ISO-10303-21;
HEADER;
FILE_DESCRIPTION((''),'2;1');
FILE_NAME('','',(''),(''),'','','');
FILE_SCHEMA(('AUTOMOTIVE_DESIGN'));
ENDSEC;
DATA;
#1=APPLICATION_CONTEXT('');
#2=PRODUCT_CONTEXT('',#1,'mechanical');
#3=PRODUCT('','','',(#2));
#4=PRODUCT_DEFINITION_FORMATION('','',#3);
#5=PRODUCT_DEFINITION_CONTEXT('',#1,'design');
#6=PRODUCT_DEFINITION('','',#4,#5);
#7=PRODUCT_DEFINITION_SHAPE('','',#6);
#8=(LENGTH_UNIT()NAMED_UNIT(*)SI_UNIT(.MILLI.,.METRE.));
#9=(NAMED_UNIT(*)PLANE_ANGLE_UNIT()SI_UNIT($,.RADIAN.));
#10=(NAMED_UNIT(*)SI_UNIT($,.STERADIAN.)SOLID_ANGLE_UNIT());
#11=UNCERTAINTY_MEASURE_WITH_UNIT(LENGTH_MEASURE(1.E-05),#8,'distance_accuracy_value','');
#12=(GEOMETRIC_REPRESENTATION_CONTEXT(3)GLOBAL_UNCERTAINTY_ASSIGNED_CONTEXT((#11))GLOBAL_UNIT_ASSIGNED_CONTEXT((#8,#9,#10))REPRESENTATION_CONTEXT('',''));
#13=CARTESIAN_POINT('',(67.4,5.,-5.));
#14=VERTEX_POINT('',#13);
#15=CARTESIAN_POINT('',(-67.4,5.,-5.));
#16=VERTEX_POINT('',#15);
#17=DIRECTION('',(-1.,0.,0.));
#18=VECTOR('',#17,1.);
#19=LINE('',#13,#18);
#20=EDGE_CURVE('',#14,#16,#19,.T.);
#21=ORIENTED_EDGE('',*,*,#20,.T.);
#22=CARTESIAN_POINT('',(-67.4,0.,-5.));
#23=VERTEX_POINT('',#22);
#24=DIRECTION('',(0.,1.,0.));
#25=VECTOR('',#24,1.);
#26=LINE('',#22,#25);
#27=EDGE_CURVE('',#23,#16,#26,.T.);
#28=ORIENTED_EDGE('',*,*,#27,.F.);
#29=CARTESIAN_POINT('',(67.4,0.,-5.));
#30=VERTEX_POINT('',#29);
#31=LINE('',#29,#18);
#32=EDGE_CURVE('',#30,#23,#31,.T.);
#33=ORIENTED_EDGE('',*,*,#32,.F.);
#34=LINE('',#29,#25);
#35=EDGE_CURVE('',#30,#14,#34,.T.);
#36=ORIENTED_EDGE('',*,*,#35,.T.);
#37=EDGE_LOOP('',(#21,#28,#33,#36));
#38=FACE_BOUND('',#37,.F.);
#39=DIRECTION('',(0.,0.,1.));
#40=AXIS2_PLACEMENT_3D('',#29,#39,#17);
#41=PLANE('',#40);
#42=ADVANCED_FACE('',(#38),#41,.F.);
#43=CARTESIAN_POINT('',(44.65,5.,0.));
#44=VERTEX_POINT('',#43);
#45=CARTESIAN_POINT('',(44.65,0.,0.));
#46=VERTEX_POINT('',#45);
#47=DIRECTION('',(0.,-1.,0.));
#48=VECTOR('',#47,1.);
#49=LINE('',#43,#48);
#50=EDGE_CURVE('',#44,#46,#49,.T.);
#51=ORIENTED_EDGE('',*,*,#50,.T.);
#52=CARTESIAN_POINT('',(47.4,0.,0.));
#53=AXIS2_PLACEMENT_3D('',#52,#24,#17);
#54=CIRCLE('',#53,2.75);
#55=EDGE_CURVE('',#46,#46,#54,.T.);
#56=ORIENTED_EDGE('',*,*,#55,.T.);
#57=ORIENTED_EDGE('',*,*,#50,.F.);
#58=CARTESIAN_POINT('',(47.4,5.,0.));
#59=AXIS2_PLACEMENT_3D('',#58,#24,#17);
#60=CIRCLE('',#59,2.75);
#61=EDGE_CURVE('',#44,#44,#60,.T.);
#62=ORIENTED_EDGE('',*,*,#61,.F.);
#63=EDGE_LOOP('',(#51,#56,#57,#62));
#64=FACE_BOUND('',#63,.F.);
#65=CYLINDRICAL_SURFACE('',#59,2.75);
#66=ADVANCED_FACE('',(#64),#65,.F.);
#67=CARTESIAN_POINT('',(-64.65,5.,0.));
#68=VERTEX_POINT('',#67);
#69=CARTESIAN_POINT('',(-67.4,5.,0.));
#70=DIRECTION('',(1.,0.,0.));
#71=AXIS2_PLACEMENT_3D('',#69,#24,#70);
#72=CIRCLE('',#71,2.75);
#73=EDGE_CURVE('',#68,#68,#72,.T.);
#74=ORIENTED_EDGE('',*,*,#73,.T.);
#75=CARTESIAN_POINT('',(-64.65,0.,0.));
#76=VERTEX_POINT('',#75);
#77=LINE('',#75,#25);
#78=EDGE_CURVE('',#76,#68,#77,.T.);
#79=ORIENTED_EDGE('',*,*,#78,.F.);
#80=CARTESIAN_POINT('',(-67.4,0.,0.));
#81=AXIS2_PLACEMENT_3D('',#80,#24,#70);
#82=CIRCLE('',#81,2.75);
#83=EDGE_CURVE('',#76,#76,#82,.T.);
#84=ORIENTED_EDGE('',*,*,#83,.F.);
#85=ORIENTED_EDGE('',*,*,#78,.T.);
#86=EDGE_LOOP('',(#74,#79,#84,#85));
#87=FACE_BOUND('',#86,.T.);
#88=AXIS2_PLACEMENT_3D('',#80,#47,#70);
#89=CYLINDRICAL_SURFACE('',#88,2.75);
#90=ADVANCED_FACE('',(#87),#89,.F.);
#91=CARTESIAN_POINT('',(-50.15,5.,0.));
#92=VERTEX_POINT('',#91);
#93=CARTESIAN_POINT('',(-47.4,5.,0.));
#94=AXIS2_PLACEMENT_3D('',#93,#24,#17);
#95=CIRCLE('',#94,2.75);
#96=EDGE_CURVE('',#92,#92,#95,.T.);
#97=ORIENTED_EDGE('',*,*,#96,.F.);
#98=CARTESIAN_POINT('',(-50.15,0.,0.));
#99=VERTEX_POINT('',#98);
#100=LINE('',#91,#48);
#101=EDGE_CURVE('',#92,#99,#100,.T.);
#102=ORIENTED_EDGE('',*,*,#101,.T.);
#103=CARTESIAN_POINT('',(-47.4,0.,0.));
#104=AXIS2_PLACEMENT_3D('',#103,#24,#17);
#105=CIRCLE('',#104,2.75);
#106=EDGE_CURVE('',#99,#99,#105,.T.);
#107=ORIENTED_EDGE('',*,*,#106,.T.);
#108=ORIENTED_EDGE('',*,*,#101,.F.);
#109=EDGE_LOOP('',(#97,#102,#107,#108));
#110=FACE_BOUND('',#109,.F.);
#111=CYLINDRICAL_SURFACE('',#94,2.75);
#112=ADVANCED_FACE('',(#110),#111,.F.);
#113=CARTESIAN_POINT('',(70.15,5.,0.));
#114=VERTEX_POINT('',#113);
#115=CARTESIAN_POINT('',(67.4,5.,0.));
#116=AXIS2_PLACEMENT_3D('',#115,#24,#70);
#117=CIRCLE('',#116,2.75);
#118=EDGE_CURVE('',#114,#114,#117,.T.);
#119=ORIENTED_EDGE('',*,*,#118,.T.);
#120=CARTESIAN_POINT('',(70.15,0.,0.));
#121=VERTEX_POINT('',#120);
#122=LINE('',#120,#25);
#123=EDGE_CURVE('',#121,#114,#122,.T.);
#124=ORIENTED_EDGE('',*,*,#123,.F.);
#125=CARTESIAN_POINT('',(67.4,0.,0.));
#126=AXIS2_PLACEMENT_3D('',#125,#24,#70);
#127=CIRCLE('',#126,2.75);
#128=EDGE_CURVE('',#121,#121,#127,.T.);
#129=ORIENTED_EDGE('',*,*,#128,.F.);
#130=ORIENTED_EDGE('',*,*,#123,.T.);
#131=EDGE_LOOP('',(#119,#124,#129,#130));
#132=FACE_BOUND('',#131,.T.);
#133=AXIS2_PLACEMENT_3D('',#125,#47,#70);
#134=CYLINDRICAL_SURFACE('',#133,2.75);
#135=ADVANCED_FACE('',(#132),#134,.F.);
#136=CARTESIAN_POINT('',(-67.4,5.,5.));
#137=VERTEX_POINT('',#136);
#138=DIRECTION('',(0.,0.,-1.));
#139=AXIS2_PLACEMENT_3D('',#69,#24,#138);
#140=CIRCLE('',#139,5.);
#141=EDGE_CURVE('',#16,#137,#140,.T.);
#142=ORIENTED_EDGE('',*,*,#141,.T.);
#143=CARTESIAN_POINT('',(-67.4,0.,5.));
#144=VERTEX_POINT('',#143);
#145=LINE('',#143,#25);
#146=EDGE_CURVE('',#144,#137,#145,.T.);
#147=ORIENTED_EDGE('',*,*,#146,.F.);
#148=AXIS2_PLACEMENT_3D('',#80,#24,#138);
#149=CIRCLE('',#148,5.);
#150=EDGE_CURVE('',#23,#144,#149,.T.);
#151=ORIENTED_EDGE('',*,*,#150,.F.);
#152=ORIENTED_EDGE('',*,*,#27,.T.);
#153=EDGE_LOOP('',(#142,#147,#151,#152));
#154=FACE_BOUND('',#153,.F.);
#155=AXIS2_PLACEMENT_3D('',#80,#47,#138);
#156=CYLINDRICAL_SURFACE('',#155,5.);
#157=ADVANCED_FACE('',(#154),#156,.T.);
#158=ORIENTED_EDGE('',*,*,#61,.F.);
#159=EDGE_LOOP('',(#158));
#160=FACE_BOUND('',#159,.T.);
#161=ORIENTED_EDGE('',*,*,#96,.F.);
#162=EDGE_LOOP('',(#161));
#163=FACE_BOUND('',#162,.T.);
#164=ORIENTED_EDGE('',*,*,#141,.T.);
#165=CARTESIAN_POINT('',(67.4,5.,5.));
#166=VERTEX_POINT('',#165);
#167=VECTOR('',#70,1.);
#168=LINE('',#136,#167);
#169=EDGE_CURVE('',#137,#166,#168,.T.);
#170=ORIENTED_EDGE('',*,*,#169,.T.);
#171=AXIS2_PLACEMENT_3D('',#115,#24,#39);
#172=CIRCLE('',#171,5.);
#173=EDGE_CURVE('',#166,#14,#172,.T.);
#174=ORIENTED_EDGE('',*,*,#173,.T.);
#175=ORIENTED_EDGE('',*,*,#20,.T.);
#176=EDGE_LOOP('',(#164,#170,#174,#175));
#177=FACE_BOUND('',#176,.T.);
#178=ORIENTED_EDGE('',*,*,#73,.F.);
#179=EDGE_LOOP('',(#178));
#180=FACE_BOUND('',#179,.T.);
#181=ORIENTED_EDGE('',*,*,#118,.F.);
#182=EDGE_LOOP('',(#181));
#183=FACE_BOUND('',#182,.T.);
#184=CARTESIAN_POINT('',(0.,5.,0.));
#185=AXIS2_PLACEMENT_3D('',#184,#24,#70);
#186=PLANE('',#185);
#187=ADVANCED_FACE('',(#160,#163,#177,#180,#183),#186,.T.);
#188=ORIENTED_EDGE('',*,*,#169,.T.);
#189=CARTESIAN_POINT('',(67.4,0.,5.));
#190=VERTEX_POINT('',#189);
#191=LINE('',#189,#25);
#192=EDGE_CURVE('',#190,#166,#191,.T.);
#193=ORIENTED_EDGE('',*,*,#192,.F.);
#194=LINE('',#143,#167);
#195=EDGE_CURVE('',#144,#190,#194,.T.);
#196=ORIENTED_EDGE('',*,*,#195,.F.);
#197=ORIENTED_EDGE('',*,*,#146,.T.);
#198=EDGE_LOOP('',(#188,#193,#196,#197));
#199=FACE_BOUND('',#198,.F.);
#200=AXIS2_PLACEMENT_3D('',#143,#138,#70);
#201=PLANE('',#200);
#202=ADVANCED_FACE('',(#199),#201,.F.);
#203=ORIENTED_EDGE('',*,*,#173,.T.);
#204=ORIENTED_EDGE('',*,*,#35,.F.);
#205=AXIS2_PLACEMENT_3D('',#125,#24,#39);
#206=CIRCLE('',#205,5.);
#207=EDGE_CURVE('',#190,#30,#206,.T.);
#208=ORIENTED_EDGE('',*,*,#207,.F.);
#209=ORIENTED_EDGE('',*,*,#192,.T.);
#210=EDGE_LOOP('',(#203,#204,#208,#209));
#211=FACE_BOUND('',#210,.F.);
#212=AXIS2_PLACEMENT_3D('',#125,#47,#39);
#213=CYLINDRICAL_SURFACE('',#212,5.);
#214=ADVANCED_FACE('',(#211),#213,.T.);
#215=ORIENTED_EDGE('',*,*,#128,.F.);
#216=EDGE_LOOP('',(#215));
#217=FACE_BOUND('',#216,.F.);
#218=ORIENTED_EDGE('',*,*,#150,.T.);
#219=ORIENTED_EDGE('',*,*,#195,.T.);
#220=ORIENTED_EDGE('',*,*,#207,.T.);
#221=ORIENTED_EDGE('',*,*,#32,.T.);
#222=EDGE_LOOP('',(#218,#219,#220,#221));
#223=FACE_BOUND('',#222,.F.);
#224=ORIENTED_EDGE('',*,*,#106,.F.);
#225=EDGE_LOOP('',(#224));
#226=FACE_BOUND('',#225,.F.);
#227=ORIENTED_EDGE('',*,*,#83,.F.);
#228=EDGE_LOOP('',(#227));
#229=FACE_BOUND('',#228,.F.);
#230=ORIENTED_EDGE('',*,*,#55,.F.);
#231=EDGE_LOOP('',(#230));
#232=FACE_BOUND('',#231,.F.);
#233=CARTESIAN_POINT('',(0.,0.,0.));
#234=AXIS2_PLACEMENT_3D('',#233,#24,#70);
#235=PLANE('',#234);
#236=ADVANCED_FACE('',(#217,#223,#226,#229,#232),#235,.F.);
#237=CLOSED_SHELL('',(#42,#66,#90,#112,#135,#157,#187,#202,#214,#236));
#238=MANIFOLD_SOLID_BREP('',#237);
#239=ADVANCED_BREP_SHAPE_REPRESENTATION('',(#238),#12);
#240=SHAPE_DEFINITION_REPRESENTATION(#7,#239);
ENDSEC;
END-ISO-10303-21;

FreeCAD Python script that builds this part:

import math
import FreeCAD as App
import Part
import Sketcher

doc = App.newDocument("Part")
body = doc.addObject("PartDesign::Body", "Body")

sketch1 = body.newObject("Sketcher::SketchObject", "Sketch")
sketch1.AttachmentSupport = (doc.getObject("XZ_Plane"), [""])
sketch1.MapMode = "FlatFace"
sketch1.addGeometry(Part.ArcOfCircle(Part.Circle(App.Vector(-67.4, 0, 0), App.Vector(0, 0, 1), 5), math.radians(90), math.radians(270)), False)
sketch1.addGeometry(Part.LineSegment(App.Vector(-67.4, 5, 0), App.Vector(67.4, 5, 0)), False)
sketch1.addGeometry(Part.ArcOfCircle(Part.Circle(App.Vector(67.4, 0, 0), App.Vector(0, 0, 1), 5), math.radians(-90), math.radians(90)), False)
sketch1.addGeometry(Part.LineSegment(App.Vector(67.4, -5, 0), App.Vector(-67.4, -5, 0)), False)
sketch1.addGeometry(Part.Circle(App.Vector(-67.4, 0, 0), App.Vector(0, 0, 1), 2.8), False)
sketch1.addGeometry(Part.Circle(App.Vector(67.4, 0, 0), App.Vector(0, 0, 1), 2.8), False)
sketch1.addConstraint(Sketcher.Constraint("Tangent", 0, 1, 1, 1))
sketch1.addConstraint(Sketcher.Constraint("Tangent", 1, 2, 2, 2))
sketch1.addConstraint(Sketcher.Constraint("Tangent", 2, 1, 3, 1))
sketch1.addConstraint(Sketcher.Constraint("Tangent", 3, 2, 0, 2))
sketch1.addConstraint(Sketcher.Constraint("Horizontal", 1))
sketch1.addConstraint(Sketcher.Constraint("Horizontal", 3))
sketch1.addConstraint(Sketcher.Constraint("Coincident", 4, 3, 0, 3))
sketch1.addConstraint(Sketcher.Constraint("Coincident", 5, 3, 2, 3))
sketch1.addConstraint(Sketcher.Constraint("Equal", 4, 5))
sketch1.addConstraint(Sketcher.Constraint("Symmetric", 0, 3, 2, 3, -1, 1))
sketch1.addConstraint(Sketcher.Constraint("Radius", 0, 5.0))
sketch1.addConstraint(Sketcher.Constraint("Diameter", 4, 5.5))
sketch1.addConstraint(Sketcher.Constraint("DistanceX", 1, 1, 1, 2, 134.8))
pad1 = body.newObject("PartDesign::Pad", "Pad")
pad1.Profile = sketch1
pad1.Length = 5
pad1.Reversed = True

sketch2 = body.newObject("Sketcher::SketchObject", "Sketch001")
sketch2.AttachmentSupport = (doc.getObject("XZ_Plane"), [""])
sketch2.MapMode = "FlatFace"
sketch2.AttachmentOffset = App.Placement(App.Vector(0, 0, -5), App.Rotation())
sketch2.addGeometry(Part.Circle(App.Vector(-47.4, 0, 0), App.Vector(0, 0, 1), 2.8), False)
sketch2.addGeometry(Part.Circle(App.Vector(47.4, 0, 0), App.Vector(0, 0, 1), 2.8), False)
sketch2.addConstraint(Sketcher.Constraint("Equal", 0, 1))
sketch2.addConstraint(Sketcher.Constraint("Symmetric", 0, 3, 1, 3, -1, 1))
sketch2.addConstraint(Sketcher.Constraint("PointOnObject", 0, 3, -1))
sketch2.addConstraint(Sketcher.Constraint("Diameter", 0, 5.5))
sketch2.addConstraint(Sketcher.Constraint("DistanceX", 0, 3, -1, 1, 47.4))
pocket1 = body.newObject("PartDesign::Pocket", "Pocket")
pocket1.Profile = sketch2
pocket1.Length = 13
pocket1.Reversed = True

doc.recompute()
